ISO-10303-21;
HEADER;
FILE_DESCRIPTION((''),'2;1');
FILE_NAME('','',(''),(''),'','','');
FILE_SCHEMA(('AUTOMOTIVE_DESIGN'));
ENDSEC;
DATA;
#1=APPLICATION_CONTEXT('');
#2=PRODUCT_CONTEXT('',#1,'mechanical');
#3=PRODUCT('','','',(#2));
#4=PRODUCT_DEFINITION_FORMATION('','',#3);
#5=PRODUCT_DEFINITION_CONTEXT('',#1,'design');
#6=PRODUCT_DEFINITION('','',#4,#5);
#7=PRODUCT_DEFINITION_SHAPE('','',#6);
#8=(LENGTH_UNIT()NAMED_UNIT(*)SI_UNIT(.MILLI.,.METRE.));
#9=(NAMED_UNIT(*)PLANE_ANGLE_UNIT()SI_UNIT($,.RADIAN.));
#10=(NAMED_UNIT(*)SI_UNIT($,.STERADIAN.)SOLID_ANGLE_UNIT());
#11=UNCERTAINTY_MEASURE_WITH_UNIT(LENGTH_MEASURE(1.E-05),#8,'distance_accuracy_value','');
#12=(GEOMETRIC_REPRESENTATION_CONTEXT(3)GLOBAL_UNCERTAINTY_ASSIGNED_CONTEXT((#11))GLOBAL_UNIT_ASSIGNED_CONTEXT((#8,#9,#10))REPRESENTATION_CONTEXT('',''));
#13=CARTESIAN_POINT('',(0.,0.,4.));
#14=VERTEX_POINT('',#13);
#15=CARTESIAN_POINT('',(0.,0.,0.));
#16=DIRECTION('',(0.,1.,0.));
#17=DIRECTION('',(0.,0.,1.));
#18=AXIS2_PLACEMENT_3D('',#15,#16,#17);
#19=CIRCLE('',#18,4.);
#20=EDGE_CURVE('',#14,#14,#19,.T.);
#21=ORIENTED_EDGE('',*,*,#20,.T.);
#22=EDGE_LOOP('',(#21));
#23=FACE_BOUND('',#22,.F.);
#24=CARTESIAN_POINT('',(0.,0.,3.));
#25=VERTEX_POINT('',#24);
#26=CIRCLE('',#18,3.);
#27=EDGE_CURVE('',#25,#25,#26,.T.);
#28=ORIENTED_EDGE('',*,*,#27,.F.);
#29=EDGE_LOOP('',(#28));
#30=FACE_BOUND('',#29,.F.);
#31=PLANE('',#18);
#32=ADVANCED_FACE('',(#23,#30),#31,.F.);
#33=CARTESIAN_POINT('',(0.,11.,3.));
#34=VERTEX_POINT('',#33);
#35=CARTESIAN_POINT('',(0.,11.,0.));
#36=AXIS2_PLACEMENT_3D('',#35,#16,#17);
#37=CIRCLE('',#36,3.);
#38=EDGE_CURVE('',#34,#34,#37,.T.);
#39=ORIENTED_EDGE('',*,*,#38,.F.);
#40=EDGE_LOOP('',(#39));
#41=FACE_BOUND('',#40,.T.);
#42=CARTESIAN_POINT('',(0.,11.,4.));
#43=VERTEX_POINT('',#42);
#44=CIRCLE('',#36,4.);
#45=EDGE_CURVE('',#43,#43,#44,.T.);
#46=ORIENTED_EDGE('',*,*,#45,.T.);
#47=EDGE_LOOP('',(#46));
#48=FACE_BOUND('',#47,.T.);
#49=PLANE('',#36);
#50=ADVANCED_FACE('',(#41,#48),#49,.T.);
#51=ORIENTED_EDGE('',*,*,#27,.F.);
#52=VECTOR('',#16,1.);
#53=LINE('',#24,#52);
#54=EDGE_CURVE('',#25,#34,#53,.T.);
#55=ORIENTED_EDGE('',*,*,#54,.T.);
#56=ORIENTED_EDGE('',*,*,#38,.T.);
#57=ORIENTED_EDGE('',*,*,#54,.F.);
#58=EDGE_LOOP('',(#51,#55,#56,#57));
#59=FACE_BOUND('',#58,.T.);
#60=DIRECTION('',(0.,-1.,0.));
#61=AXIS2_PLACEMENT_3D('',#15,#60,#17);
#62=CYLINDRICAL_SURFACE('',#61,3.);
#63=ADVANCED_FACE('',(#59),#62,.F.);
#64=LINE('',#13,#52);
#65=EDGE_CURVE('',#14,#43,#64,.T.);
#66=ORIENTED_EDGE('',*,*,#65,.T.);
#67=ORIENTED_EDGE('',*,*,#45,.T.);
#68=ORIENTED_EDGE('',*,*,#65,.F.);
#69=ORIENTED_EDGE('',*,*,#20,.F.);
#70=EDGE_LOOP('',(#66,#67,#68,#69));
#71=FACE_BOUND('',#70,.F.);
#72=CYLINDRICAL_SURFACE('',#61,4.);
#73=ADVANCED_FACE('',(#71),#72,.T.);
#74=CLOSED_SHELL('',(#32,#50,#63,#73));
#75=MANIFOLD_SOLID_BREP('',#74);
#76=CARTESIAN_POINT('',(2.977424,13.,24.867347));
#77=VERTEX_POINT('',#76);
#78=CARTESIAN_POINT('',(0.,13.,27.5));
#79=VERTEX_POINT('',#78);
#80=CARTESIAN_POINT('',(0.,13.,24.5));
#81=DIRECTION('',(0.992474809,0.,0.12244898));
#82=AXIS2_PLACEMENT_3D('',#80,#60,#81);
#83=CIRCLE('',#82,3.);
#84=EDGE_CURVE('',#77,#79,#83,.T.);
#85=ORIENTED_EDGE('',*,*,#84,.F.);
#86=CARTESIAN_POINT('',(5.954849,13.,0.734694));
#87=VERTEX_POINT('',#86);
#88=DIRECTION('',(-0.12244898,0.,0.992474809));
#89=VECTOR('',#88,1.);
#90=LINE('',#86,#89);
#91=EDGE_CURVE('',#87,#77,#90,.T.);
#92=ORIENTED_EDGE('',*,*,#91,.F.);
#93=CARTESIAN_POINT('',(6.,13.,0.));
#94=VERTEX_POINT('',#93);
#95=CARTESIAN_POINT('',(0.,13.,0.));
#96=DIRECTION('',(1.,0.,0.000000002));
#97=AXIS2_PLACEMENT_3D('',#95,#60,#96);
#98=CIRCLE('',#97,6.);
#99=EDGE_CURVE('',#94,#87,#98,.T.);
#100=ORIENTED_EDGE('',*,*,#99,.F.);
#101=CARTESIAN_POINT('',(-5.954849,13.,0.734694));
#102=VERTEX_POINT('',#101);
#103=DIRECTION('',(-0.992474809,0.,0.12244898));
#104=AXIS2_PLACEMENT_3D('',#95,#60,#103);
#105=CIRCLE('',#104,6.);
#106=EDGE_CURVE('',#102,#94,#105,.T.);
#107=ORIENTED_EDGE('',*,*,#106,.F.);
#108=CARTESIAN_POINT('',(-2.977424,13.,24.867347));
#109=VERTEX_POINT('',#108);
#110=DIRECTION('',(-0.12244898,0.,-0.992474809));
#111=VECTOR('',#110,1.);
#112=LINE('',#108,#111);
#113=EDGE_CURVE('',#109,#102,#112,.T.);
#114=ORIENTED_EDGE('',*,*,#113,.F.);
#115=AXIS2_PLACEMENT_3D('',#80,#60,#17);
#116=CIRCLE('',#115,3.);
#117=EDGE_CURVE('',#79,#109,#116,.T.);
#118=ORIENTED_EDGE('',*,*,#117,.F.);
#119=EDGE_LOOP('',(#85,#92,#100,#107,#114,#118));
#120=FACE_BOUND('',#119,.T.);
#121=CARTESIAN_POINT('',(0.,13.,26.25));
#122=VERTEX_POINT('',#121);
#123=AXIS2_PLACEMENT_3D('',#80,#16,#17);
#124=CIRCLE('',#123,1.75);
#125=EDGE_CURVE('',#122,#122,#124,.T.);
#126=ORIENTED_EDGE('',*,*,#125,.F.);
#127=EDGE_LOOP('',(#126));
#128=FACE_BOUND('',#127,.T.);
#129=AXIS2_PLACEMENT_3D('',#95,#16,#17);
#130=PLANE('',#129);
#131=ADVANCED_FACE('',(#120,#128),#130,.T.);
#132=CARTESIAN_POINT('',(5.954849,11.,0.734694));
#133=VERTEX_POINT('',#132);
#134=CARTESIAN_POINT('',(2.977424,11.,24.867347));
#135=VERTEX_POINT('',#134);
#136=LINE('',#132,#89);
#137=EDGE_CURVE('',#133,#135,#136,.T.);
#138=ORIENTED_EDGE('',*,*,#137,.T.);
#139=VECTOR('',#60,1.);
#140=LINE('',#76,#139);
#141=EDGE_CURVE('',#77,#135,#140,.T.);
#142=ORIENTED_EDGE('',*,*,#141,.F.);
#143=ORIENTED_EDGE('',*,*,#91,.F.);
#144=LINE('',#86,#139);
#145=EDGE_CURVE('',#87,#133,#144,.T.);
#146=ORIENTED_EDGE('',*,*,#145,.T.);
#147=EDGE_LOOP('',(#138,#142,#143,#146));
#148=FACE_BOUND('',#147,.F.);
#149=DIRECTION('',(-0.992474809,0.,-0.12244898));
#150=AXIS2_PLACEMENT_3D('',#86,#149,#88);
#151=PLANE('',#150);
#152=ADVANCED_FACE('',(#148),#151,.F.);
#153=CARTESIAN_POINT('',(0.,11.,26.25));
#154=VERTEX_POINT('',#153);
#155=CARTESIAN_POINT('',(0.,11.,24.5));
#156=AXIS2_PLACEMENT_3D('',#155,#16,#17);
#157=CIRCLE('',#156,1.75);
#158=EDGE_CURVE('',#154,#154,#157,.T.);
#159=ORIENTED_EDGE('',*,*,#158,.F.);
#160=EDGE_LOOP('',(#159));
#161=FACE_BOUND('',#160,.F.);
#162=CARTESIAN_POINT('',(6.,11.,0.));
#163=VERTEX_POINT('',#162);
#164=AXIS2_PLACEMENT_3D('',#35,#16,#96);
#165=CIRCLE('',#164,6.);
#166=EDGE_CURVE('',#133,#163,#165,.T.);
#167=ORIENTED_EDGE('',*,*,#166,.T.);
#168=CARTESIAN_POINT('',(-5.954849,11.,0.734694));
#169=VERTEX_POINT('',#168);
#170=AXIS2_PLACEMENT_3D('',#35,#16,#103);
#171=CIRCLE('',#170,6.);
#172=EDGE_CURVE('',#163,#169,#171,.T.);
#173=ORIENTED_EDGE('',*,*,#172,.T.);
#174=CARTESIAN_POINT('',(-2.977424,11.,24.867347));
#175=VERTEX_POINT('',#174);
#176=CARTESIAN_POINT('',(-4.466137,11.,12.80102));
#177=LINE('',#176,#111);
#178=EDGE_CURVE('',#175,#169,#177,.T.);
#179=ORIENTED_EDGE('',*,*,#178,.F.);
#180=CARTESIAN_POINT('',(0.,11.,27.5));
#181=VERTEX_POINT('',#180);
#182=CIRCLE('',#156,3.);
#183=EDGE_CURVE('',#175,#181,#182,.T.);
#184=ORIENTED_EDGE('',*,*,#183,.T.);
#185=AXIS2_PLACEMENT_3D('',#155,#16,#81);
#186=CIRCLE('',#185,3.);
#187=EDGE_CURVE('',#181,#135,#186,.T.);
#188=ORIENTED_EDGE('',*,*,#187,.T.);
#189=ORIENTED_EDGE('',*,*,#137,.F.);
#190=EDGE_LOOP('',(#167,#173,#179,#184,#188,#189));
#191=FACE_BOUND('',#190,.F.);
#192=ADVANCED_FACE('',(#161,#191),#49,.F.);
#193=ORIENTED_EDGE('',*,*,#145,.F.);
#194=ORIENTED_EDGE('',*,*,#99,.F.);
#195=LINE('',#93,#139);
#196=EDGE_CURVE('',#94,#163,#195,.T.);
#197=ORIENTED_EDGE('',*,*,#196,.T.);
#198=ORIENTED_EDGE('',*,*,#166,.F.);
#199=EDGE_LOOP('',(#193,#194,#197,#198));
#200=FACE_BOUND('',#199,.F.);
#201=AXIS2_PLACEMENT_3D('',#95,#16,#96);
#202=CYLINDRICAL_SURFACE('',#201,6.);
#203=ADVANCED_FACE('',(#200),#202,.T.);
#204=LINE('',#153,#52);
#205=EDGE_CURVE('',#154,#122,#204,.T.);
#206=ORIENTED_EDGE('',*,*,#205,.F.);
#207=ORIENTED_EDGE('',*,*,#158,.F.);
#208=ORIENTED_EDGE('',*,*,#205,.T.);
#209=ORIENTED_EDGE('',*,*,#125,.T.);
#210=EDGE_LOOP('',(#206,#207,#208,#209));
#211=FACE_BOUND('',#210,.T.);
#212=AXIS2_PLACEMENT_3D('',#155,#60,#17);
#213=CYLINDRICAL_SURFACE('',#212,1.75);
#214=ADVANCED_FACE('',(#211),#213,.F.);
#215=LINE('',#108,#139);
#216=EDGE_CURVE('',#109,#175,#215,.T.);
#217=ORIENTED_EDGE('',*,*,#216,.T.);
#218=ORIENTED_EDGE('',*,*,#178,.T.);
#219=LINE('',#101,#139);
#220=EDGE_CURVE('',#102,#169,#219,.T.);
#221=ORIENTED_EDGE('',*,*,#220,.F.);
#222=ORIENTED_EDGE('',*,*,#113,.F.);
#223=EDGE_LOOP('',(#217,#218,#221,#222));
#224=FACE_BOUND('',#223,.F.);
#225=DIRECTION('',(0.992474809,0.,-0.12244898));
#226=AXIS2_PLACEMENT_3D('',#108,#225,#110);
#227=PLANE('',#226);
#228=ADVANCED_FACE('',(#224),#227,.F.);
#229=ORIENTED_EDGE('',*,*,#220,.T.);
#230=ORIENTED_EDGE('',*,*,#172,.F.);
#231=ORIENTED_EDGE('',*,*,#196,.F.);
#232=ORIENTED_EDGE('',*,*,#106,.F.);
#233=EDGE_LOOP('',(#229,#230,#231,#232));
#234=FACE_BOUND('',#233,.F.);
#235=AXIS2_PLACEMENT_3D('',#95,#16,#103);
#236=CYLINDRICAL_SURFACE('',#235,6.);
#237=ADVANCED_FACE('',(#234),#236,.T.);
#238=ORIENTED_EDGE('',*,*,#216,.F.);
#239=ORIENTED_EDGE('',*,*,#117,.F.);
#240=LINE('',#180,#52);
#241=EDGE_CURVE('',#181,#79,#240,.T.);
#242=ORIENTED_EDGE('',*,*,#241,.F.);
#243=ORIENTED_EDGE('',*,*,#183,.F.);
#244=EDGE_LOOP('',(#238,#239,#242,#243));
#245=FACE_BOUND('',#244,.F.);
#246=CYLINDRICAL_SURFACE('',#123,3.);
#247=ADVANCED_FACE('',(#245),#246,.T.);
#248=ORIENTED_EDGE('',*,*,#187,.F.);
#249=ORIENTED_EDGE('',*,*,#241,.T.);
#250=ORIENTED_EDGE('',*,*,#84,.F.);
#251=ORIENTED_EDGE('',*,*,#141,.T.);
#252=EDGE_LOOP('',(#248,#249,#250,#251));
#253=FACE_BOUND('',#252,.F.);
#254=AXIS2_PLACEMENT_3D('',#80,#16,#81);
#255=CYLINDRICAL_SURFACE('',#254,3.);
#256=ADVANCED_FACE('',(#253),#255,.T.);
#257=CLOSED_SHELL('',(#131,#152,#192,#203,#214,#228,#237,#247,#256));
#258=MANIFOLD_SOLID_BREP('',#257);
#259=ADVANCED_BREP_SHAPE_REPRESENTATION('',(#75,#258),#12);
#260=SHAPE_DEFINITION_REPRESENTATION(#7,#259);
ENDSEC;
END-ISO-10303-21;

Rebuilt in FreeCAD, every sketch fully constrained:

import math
import FreeCAD as App
import Part
import Sketcher
Q = App.Units.Quantity

doc = App.newDocument("Part")
body = doc.addObject("PartDesign::Body", "Body")

# Sketch on XZ plane
sketch1 = body.newObject("Sketcher::SketchObject", "Sketch")
sketch1.AttachmentSupport = (doc.getObject("XZ_Plane"), [""])
sketch1.MapMode = "FlatFace"
sketch1.addGeometry([
    Part.Circle(App.Vector(0, 0, 0), App.Vector(0, 0, 1), 4),
    Part.Circle(App.Vector(0, 0, 0), App.Vector(0, 0, 1), 3),
], False)
sketch1.addConstraint([
    Sketcher.Constraint("Coincident", 0, 3, -1, 1),
    Sketcher.Constraint("Coincident", 1, 3, -1, 1),
    Sketcher.Constraint("Diameter", 0, Q("8 mm")),
    Sketcher.Constraint("Diameter", 1, Q("6 mm")),
])
pad1 = body.newObject("PartDesign::Pad", "Pad")
pad1.Profile = sketch1
pad1.Length = 11
pad1.Reversed = True
body2 = doc.addObject("PartDesign::Body", "Body001")

# Sketch on XZ plane
sketch2 = body2.newObject("Sketcher::SketchObject", "Sketch001")
sketch2.AttachmentSupport = (doc.getObject("XZ_Plane001"), [""])
sketch2.MapMode = "FlatFace"
sketch2.AttachmentOffset = App.Placement(App.Vector(0, 0, -11), App.Rotation())
sketch2.addGeometry([
    Part.Circle(App.Vector(0, 0, 0), App.Vector(0, 0, 1), 27.5),
    Part.Circle(App.Vector(0, 24.5, 0), App.Vector(0, 0, 1), 1.8),
], False)
sketch2.addConstraint([
    Sketcher.Constraint("Coincident", 0, 3, -1, 1),
    Sketcher.Constraint("PointOnObject", 1, 3, -2),
    Sketcher.Constraint("Diameter", 0, Q("55 mm")),
    Sketcher.Constraint("Diameter", 1, Q("3.5 mm")),
    Sketcher.Constraint("DistanceY", -1, 1, 1, 3, Q("24.5 mm")),
])
pad2 = body2.newObject("PartDesign::Pad", "Pad001")
pad2.Profile = sketch2
pad2.Length = 2
pad2.Reversed = True

# Sketch on XZ plane
sketch3 = body2.newObject("Sketcher::SketchObject", "Sketch002")
sketch3.AttachmentSupport = (doc.getObject("XZ_Plane001"), [""])
sketch3.MapMode = "FlatFace"
sketch3.AttachmentOffset = App.Placement(App.Vector(0, 0, -13), App.Rotation())
sketch3.addGeometry([
    Part.Circle(App.Vector(0, 0, 0), App.Vector(0, 0, 1), 41.7),  # 0
    Part.ArcOfCircle(Part.Circle(App.Vector(0, 24.5, 0), App.Vector(0, 0, 1), 3), math.radians(7), math.radians(90)),  # 1
    Part.ArcOfCircle(Part.Circle(App.Vector(0, 24.5, 0), App.Vector(0, 0, 1), 3), math.radians(90), math.radians(173)),  # 2
    Part.LineSegment(App.Vector(-3, 24.9, 0), App.Vector(-6, 0.7, 0)),  # 3
    Part.ArcOfCircle(Part.Circle(App.Vector(0, 0, 0), App.Vector(0, 0, 1), 6), math.radians(173), math.radians(360)),  # 4
    Part.ArcOfCircle(Part.Circle(App.Vector(0, 0, 0), App.Vector(0, 0, 1), 6), math.radians(0), math.radians(7.03)),  # 5
    Part.LineSegment(App.Vector(6, 0.7, 0), App.Vector(3, 24.9, 0)),  # 6
], False)
sketch3.addConstraint([
    Sketcher.Constraint("Tangent", 1, 2, 2, 1),
    Sketcher.Constraint("Tangent", 2, 2, 3, 1),
    Sketcher.Constraint("Tangent", 3, 2, 4, 1),
    Sketcher.Constraint("Tangent", 4, 2, 5, 1),
    Sketcher.Constraint("Tangent", 5, 2, 6, 1),
    Sketcher.Constraint("Tangent", 6, 2, 1, 1),
    Sketcher.Constraint("Coincident", 0, 3, -1, 1),
    Sketcher.Constraint("Coincident", 4, 3, -1, 1),
    Sketcher.Constraint("Equal", 1, 2),
    Sketcher.Constraint("Equal", 4, 5),
    Sketcher.Constraint("PointOnObject", 1, 3, -2),
    Sketcher.Constraint("PointOnObject", 1, 2, -2),
    Sketcher.Constraint("PointOnObject", 4, 2, -1),
    Sketcher.Constraint("Radius", 1, Q("3 mm")),
    Sketcher.Constraint("Radius", 4, Q("6 mm")),
    Sketcher.Constraint("DistanceY", -1, 1, 1, 3, Q("24.5 mm")),
    Sketcher.Constraint("Diameter", 0, Q("83.37033 mm")),
])
pocket1 = body2.newObject("PartDesign::Pocket", "Pocket")
pocket1.Profile = sketch3
pocket1.Type = "ThroughAll"
pocket1.Reversed = True

doc.recompute()
